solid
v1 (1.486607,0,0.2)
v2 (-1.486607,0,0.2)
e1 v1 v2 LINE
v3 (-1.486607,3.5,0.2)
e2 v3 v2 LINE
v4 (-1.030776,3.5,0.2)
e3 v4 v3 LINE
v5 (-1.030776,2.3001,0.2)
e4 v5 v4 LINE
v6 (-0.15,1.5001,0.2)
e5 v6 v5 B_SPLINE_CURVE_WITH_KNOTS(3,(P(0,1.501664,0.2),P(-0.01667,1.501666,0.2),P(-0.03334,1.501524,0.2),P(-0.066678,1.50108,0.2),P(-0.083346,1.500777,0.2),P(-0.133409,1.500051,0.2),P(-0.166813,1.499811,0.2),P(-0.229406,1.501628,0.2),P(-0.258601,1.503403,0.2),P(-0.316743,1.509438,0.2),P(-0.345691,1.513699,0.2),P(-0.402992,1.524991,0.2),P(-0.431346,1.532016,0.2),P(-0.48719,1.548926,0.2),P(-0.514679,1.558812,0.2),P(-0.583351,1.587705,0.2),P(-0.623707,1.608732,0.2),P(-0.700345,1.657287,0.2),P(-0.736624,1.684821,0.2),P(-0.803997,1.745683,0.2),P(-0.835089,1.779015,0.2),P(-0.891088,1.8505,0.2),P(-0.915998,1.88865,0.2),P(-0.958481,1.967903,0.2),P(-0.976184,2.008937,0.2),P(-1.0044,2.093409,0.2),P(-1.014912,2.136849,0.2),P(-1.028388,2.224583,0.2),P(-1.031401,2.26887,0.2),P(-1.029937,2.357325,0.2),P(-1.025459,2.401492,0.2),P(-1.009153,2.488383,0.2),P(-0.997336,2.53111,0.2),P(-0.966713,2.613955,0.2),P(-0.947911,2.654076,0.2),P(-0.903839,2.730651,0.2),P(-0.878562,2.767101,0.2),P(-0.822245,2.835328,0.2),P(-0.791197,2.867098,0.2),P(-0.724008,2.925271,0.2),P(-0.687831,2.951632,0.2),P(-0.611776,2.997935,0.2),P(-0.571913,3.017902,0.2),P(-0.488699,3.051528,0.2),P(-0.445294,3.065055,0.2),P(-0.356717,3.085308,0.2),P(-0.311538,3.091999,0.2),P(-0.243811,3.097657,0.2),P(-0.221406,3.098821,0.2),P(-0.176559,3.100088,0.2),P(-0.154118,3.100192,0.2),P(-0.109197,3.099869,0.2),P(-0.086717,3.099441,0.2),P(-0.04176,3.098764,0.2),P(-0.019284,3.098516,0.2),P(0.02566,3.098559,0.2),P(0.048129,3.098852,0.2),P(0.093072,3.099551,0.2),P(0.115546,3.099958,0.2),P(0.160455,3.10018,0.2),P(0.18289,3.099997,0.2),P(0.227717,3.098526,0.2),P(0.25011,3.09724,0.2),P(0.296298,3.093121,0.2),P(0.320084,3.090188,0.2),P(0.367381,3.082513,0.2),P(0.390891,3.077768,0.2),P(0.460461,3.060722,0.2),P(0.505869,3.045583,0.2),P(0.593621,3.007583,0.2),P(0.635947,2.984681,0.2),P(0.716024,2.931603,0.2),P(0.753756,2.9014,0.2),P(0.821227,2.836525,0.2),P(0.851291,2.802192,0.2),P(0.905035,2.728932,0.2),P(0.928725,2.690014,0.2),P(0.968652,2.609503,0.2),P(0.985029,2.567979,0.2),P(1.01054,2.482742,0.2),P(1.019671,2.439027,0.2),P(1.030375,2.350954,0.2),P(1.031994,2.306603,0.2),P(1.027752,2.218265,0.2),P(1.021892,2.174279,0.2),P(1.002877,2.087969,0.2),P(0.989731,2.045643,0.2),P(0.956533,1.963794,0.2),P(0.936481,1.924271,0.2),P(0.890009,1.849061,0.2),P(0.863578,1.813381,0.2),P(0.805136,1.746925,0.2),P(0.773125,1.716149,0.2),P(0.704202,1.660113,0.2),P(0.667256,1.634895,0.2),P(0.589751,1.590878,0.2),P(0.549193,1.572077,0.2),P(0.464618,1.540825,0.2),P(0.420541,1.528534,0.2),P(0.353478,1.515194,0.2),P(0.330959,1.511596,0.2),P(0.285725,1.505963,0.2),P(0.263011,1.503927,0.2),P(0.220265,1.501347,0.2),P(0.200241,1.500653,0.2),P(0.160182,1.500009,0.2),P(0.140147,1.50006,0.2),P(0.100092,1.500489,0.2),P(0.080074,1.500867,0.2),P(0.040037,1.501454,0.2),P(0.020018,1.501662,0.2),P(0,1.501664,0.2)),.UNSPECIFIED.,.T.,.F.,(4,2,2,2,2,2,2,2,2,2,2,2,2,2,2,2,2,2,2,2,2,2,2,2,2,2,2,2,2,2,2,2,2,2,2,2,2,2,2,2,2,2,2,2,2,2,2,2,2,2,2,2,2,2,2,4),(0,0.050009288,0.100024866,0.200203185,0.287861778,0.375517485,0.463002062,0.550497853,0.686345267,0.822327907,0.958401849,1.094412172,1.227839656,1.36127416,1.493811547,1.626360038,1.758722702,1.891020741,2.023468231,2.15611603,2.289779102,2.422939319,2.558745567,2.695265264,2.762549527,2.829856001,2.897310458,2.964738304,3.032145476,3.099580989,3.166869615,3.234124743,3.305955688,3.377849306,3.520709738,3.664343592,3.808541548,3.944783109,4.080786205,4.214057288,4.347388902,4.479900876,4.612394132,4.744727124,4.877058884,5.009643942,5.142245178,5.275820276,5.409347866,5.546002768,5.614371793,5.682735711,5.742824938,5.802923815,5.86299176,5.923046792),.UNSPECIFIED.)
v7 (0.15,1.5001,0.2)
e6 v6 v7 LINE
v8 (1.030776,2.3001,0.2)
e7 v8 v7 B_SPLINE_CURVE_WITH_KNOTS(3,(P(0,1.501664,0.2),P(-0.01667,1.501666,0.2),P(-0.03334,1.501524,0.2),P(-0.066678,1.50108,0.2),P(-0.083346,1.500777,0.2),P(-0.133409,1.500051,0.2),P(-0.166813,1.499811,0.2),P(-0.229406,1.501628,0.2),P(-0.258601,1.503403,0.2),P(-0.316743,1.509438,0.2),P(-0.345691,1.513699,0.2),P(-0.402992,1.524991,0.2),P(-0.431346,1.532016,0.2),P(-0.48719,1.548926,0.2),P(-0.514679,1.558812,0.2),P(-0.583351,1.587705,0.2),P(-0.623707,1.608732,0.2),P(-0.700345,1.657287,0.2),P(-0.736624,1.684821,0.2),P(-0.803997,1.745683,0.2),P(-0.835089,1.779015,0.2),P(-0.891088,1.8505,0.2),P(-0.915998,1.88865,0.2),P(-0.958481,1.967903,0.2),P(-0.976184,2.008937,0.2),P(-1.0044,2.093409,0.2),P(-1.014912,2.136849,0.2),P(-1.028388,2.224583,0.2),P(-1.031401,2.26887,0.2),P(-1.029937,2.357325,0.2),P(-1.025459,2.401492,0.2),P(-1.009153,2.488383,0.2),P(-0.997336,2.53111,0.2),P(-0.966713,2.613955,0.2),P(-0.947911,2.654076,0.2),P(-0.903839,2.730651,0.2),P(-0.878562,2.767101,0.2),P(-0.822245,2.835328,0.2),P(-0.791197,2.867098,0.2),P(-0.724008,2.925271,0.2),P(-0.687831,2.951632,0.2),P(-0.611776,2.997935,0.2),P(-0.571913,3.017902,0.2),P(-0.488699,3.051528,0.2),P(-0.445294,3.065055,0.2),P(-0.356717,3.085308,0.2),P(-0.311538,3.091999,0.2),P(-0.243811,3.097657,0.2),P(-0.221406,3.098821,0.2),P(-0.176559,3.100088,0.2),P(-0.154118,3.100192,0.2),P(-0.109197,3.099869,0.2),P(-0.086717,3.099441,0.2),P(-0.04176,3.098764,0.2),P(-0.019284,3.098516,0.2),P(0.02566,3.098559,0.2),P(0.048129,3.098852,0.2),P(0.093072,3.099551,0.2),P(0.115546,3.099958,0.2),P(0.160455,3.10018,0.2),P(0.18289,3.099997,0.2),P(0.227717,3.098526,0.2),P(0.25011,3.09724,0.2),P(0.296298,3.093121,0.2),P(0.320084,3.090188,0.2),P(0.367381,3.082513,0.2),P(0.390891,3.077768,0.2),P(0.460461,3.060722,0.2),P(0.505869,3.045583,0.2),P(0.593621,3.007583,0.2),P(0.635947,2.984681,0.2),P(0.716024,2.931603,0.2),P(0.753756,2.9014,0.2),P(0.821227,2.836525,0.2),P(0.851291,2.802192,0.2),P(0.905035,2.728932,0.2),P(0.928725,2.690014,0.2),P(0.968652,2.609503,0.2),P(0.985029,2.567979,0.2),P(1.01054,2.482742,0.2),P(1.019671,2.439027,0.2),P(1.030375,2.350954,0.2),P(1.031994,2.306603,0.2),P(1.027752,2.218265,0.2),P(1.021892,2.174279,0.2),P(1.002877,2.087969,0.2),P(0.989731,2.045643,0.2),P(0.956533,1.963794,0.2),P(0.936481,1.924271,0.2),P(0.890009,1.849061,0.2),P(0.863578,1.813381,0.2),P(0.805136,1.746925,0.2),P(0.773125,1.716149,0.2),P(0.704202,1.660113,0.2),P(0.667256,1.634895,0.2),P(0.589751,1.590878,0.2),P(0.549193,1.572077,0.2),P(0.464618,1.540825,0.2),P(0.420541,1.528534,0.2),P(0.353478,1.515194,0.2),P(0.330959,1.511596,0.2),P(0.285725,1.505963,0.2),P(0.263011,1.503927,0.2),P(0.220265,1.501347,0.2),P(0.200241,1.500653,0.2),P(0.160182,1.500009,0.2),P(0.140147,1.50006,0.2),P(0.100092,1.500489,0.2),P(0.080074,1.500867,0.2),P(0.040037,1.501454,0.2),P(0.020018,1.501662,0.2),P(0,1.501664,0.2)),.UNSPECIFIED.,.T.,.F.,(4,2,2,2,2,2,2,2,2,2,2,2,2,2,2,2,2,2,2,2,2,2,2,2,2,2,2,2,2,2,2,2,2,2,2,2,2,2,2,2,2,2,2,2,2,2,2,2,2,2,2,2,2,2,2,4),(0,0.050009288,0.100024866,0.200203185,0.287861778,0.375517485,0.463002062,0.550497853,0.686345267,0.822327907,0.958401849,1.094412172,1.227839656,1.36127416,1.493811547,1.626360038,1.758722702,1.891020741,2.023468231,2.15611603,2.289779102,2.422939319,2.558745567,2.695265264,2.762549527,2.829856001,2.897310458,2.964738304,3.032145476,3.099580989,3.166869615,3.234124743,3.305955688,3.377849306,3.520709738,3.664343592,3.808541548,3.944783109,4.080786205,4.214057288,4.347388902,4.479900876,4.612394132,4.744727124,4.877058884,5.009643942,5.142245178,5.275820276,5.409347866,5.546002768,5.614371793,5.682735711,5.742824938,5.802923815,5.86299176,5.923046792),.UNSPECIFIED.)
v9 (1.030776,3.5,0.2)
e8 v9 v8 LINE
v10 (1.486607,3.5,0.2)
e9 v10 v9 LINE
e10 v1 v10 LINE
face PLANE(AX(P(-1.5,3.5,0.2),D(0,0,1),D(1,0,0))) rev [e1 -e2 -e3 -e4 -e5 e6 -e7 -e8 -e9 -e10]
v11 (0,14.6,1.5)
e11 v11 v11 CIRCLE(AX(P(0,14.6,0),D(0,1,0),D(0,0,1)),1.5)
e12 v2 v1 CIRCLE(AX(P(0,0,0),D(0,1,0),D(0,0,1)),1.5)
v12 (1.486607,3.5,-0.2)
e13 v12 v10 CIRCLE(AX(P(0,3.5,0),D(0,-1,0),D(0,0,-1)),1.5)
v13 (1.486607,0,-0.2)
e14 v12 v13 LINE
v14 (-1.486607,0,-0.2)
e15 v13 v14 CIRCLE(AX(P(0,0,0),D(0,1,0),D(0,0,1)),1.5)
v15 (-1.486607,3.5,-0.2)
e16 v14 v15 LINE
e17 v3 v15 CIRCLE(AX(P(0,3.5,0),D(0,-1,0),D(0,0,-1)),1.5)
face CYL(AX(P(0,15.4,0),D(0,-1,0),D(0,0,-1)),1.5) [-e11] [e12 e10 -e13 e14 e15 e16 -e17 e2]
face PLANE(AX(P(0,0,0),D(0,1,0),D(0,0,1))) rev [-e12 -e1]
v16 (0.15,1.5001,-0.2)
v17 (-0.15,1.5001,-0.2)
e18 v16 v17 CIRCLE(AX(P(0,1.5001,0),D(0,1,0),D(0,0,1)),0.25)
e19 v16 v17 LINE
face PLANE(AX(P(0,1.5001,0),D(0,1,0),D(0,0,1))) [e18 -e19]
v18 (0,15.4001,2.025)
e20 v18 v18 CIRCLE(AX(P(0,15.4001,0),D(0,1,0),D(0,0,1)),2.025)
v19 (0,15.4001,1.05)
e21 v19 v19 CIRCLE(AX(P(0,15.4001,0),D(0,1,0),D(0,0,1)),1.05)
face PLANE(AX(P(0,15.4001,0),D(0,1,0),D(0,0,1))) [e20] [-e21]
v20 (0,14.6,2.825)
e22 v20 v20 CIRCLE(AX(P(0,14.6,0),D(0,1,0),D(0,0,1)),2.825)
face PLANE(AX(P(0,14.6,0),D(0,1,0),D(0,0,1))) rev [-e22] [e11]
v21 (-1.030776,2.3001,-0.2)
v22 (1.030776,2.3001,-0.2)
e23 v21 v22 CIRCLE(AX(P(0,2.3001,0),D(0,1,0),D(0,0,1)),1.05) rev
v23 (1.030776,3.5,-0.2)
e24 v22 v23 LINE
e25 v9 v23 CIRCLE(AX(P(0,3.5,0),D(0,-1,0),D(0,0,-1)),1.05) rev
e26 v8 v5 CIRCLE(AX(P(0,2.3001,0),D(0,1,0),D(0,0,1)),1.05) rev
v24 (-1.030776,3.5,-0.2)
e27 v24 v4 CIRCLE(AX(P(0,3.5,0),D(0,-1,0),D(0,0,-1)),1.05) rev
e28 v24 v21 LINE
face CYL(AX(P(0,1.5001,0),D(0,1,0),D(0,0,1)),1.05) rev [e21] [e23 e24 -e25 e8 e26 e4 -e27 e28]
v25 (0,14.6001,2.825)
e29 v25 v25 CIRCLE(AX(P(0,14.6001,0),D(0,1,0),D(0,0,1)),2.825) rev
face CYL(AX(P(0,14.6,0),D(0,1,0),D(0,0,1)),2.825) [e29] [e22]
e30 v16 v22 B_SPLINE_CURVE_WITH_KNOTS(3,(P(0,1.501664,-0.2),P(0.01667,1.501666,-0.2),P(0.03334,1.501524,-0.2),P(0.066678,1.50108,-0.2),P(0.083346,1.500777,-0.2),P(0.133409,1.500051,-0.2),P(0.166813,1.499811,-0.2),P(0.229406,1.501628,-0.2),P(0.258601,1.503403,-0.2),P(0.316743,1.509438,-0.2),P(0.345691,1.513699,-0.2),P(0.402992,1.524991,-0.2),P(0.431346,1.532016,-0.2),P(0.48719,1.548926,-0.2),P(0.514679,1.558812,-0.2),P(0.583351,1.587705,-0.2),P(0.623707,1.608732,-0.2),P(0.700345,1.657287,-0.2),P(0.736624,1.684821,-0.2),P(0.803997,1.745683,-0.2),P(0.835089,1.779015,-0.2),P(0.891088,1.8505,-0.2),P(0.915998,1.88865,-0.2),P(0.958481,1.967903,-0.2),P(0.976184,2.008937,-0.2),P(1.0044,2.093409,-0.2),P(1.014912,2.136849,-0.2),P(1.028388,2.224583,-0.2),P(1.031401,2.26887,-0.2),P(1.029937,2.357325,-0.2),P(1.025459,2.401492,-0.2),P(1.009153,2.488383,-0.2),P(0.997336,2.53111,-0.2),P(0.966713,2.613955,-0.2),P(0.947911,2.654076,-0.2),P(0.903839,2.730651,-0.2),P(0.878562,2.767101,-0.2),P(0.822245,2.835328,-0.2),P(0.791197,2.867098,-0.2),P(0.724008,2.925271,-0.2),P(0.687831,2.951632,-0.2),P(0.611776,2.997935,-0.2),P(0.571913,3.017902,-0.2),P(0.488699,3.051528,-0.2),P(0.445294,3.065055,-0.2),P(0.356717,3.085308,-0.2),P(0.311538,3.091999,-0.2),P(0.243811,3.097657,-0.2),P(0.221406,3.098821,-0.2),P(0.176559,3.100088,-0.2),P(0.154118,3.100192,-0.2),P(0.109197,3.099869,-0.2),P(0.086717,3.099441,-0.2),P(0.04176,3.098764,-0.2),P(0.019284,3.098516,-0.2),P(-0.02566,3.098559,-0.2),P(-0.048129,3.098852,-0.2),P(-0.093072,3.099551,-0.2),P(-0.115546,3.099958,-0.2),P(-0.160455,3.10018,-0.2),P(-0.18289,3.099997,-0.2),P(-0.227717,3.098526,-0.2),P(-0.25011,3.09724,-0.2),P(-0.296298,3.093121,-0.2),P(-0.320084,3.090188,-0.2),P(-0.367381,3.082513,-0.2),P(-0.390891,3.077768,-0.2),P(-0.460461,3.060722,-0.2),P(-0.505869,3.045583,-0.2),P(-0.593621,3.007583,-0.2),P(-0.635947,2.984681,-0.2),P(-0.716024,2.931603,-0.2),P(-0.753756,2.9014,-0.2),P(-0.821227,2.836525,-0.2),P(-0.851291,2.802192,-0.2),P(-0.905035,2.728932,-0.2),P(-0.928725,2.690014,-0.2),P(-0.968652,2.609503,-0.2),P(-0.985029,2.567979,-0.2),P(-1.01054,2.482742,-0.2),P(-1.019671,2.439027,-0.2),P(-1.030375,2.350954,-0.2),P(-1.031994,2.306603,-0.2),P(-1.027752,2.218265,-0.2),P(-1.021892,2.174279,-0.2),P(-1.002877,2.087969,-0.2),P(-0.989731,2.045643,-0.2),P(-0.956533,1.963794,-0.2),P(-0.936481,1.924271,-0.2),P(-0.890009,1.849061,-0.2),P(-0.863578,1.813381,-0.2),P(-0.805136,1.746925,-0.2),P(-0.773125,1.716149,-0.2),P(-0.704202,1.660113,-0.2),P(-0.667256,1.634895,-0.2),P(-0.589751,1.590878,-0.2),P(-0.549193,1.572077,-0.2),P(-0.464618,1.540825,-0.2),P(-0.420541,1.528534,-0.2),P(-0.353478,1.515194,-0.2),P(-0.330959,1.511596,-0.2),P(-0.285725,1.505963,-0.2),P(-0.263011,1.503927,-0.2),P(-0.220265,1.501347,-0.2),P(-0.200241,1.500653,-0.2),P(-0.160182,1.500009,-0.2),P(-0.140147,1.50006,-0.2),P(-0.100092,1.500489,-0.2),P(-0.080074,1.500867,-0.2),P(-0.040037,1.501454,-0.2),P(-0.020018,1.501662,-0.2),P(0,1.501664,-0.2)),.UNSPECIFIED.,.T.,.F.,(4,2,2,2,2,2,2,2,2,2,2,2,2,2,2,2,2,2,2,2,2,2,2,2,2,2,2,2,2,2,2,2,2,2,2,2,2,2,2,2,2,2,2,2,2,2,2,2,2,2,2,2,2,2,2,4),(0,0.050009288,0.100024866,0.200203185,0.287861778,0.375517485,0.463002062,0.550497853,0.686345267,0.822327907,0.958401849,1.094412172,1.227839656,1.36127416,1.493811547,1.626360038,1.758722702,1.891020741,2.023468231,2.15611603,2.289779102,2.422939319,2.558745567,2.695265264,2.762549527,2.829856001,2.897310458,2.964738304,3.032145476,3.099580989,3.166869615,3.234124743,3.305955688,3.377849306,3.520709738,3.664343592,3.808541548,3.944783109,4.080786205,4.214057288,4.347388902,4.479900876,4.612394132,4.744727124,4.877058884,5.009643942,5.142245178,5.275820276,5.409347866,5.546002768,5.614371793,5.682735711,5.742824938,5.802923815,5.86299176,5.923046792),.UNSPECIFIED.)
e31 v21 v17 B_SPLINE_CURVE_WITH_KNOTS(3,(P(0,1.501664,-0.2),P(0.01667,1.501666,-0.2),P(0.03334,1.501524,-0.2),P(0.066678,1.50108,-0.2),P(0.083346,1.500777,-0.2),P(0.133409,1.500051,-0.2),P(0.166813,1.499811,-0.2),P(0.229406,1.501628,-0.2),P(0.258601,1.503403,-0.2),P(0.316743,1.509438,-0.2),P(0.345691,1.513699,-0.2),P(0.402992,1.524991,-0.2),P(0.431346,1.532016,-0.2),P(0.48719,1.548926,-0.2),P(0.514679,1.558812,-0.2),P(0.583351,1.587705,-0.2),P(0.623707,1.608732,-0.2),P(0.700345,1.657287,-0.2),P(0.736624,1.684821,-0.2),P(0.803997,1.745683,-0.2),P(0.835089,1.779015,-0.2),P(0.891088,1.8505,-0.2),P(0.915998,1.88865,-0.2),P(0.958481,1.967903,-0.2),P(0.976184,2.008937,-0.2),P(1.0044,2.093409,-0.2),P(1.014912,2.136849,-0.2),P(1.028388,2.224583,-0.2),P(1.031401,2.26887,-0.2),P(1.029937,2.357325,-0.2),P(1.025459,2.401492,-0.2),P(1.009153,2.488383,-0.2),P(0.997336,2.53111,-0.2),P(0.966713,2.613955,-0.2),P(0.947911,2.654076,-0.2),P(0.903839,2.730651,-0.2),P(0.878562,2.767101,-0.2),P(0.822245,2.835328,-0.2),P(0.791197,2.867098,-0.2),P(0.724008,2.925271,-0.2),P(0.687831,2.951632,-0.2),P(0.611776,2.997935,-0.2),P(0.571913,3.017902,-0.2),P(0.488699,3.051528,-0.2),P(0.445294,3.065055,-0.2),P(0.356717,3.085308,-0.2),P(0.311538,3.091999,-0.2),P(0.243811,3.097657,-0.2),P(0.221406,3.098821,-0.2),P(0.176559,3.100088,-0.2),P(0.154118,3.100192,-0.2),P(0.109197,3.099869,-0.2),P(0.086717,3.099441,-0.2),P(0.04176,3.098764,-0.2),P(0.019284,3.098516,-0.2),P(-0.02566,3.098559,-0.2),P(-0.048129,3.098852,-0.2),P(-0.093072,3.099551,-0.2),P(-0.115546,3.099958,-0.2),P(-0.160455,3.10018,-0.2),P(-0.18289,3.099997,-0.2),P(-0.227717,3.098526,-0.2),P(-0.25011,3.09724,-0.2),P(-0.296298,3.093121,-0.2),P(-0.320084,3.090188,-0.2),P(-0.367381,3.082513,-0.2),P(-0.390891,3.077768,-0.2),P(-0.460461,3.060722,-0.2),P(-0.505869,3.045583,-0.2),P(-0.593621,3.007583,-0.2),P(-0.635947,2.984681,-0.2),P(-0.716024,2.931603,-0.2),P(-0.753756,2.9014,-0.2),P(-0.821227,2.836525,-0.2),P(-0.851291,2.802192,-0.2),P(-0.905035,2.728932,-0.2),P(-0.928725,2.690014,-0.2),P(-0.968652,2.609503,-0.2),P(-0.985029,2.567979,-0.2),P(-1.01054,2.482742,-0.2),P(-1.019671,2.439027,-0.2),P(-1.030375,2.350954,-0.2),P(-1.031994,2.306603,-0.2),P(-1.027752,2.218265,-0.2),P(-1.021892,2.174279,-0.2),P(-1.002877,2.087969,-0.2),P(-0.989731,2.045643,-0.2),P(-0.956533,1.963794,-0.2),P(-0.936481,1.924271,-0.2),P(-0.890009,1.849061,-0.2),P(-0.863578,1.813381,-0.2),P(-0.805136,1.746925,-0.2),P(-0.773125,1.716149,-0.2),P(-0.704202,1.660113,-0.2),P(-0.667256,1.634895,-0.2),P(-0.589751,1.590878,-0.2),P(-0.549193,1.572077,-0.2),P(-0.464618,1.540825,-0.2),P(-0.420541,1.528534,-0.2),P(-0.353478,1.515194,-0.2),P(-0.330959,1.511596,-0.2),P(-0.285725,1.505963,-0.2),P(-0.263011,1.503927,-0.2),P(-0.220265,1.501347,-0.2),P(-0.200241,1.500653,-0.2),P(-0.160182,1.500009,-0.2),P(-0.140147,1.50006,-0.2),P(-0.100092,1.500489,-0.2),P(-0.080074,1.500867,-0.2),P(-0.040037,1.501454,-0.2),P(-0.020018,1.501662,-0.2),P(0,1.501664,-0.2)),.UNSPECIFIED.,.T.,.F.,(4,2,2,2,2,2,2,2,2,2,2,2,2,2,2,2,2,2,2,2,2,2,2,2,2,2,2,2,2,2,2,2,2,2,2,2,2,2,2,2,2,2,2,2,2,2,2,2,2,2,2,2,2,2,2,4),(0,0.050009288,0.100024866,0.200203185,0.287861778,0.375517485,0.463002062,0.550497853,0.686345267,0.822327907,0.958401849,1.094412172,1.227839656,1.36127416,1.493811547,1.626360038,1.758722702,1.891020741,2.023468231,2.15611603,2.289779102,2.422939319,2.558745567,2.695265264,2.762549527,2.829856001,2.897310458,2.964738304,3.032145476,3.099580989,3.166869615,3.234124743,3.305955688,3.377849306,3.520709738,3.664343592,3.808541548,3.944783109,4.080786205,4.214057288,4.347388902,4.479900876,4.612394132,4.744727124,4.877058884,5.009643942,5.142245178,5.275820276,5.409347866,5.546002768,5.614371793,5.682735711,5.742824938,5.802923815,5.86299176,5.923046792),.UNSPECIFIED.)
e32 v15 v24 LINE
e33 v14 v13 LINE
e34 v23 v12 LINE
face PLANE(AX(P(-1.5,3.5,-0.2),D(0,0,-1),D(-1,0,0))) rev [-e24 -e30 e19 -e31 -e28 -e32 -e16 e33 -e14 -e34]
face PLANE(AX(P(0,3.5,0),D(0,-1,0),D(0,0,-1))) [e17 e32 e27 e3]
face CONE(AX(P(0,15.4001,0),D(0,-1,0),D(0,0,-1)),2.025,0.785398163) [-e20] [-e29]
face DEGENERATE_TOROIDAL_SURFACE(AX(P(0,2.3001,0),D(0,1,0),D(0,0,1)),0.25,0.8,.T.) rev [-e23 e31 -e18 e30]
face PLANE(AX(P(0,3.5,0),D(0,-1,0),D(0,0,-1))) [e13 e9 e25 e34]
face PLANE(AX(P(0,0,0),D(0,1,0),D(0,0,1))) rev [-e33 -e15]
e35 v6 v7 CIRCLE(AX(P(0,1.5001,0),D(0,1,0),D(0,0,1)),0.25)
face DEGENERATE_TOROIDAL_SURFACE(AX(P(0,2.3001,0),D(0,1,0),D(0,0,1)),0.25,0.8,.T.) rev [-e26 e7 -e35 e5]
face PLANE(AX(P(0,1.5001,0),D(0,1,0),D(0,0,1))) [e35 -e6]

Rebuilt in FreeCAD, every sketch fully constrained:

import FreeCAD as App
import Part
import Sketcher
from FreeCAD import Vector


def edges_at(feature, points):
    """Names of the edges that pass closest to the given points."""
    edges = feature.Shape.Edges
    near = lambda p: min(range(len(edges)), key=lambda i: edges[i].distToShape(Part.Vertex(*p))[0])
    return sorted({f"Edge{near(p) + 1}" for p in points})

doc = App.newDocument("Part")
body = doc.addObject("PartDesign::Body", "Body")

sketch1 = body.newObject("Sketcher::SketchObject", "Sketch")
sketch1.AttachmentSupport = (doc.getObject("XZ_Plane"), [""])
sketch1.MapMode = "FlatFace"
sketch1.addGeometry(Part.Circle(Vector(0, 0, 0), Vector(0, 0, 1), 1.5), False)
sketch1.addConstraint([
    Sketcher.Constraint("Coincident", 0, 3, -1, 1),
    Sketcher.Constraint("Diameter", 0, 3.0),
])
pad1 = body.newObject("PartDesign::Pad", "Pad")
pad1.Profile = sketch1
pad1.Length = 15.4
pad1.Reversed = True

sketch2 = body.newObject("Sketcher::SketchObject", "Sketch001")
sketch2.AttachmentSupport = (doc.getObject("XZ_Plane"), [""])
sketch2.MapMode = "FlatFace"
sketch2.AttachmentOffset = App.Placement(Vector(0, 0, -15.4), App.Rotation())
sketch2.addGeometry(Part.Circle(Vector(0, 0, 0), Vector(0, 0, 1), 2.8), False)
sketch2.addConstraint([
    Sketcher.Constraint("Coincident", 0, 3, -1, 1),
    Sketcher.Constraint("Diameter", 0, 5.65),
])
pad2 = body.newObject("PartDesign::Pad", "Pad001")
pad2.Profile = sketch2
pad2.Type = "TwoLengths"
pad2.Length = 0.0001
pad2.Length2 = 0.8
pad2.Reversed = True
doc.recompute()

chamfer = body.newObject("PartDesign::Chamfer", "Chamfer")
chamfer.Base = (pad2, edges_at(pad2, [(0, 15.4, -2.825)]))
chamfer.Size = 0.8

sketch3 = body.newObject("Sketcher::SketchObject", "Sketch002")
sketch3.AttachmentSupport = (doc.getObject("XZ_Plane"), [""])
sketch3.MapMode = "FlatFace"
sketch3.AttachmentOffset = App.Placement(Vector(0, 0, -15.4001), App.Rotation())
sketch3.addGeometry(Part.Circle(Vector(0, 0, 0), Vector(0, 0, 1), 1.1), False)
sketch3.addConstraint([
    Sketcher.Constraint("Coincident", 0, 3, -1, 1),
    Sketcher.Constraint("Diameter", 0, 2.1),
])
pocket1 = body.newObject("PartDesign::Pocket", "Pocket")
pocket1.Profile = sketch3
pocket1.Length = 13.9
pocket1.Reversed = True
doc.recompute()

fillet = body.newObject("PartDesign::Fillet", "Fillet")
fillet.Base = (pocket1, edges_at(pocket1, [(0, 1.5, -1.05)]))
fillet.Radius = 0.8

sketch4 = body.newObject("Sketcher::SketchObject", "Sketch003")
sketch4.AttachmentSupport = (doc.getObject("XZ_Plane"), [""])
sketch4.MapMode = "FlatFace"
sketch4.addGeometry([
    Part.LineSegment(Vector(1.5, -0.2, 0), Vector(1.5, 0.2, 0)),
    Part.LineSegment(Vector(1.5, 0.2, 0), Vector(-1.5, 0.2, 0)),
    Part.LineSegment(Vector(-1.5, 0.2, 0), Vector(-1.5, -0.2, 0)),
    Part.LineSegment(Vector(-1.5, -0.2, 0), Vector(1.5, -0.2, 0)),
], False)
sketch4.addConstraint([
    Sketcher.Constraint("Coincident", 0, 2, 1, 1),
    Sketcher.Constraint("Coincident", 1, 2, 2, 1),
    Sketcher.Constraint("Coincident", 2, 2, 3, 1),
    Sketcher.Constraint("Coincident", 3, 2, 0, 1),
    Sketcher.Constraint("Vertical", 0),
    Sketcher.Constraint("Horizontal", 1),
    Sketcher.Constraint("Vertical", 2),
    Sketcher.Constraint("Horizontal", 3),
    Sketcher.Constraint("Symmetric", 0, 2, 2, 2, -1, 1),
    Sketcher.Constraint("DistanceX", 1, 2, 1, 1, 3.0),
    Sketcher.Constraint("DistanceY", 0, 1, 0, 2, 0.4),
])
pocket2 = body.newObject("PartDesign::Pocket", "Pocket001")
pocket2.Profile = sketch4
pocket2.Length = 3.5

doc.recompute()
